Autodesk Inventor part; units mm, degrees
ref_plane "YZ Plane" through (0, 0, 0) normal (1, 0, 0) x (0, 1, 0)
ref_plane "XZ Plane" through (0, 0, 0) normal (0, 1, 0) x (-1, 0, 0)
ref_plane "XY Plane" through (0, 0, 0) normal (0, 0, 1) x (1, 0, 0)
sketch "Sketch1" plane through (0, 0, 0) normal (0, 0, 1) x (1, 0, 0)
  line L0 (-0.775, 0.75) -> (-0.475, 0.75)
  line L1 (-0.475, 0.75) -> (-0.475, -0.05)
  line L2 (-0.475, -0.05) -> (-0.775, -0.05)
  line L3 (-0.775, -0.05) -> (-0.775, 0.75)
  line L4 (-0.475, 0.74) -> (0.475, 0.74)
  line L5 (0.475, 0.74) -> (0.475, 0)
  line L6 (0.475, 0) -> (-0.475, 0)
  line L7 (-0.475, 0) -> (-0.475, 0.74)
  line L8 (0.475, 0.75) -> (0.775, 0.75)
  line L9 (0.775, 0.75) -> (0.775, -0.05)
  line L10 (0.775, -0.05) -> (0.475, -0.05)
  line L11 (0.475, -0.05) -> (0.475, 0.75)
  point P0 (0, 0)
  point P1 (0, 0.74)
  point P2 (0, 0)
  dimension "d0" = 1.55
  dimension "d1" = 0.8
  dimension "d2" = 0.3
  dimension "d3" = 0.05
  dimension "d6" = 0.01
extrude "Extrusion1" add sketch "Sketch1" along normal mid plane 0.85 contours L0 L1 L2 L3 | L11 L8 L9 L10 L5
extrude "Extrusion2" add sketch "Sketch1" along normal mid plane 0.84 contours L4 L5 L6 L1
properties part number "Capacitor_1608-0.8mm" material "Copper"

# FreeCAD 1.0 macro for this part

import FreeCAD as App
import Part
import Sketcher

V = App.Vector

doc = App.newDocument("Part")
body = doc.addObject("PartDesign::Body", "Body")
body.AllowCompound = True

sketch1 = body.newObject("Sketcher::SketchObject", "Sketch")
sketch1.AttachmentSupport = (doc.getObject("XY_Plane"), [""])
sketch1.MapMode = "FlatFace"
sketch1.addGeometry(Part.LineSegment(V(-0.47, 0.75, 0), V(-0.78, 0.75, 0)), False)
sketch1.addGeometry(Part.LineSegment(V(-0.78, 0.75, 0), V(-0.78, -0.05, 0)), False)
sketch1.addGeometry(Part.LineSegment(V(-0.78, -0.05, 0), V(-0.47, -0.05, 0)), False)
sketch1.addGeometry(Part.LineSegment(V(-0.47, -0.05, 0), V(-0.47, 0.75, 0)), False)
sketch1.addGeometry(Part.LineSegment(V(0.47, 0.75, 0), V(0.47, -0.05, 0)), False)
sketch1.addGeometry(Part.LineSegment(V(0.47, -0.05, 0), V(0.78, -0.05, 0)), False)
sketch1.addGeometry(Part.LineSegment(V(0.78, -0.05, 0), V(0.78, 0.75, 0)), False)
sketch1.addGeometry(Part.LineSegment(V(0.78, 0.75, 0), V(0.47, 0.75, 0)), False)
sketch1.addConstraint(Sketcher.Constraint("Coincident", 0, 2, 1, 1))
sketch1.addConstraint(Sketcher.Constraint("Coincident", 1, 2, 2, 1))
sketch1.addConstraint(Sketcher.Constraint("Coincident", 2, 2, 3, 1))
sketch1.addConstraint(Sketcher.Constraint("Coincident", 3, 2, 0, 1))
sketch1.addConstraint(Sketcher.Constraint("Coincident", 4, 2, 5, 1))
sketch1.addConstraint(Sketcher.Constraint("Coincident", 5, 2, 6, 1))
sketch1.addConstraint(Sketcher.Constraint("Coincident", 6, 2, 7, 1))
sketch1.addConstraint(Sketcher.Constraint("Coincident", 7, 2, 4, 1))
sketch1.addConstraint(Sketcher.Constraint("Horizontal", 0))
sketch1.addConstraint(Sketcher.Constraint("Vertical", 1))
sketch1.addConstraint(Sketcher.Constraint("Horizontal", 2))
sketch1.addConstraint(Sketcher.Constraint("Vertical", 3))
sketch1.addConstraint(Sketcher.Constraint("Vertical", 4))
sketch1.addConstraint(Sketcher.Constraint("Horizontal", 5))
sketch1.addConstraint(Sketcher.Constraint("Vertical", 6))
sketch1.addConstraint(Sketcher.Constraint("Horizontal", 7))
sketch1.addConstraint(Sketcher.Constraint("Symmetric", 2, 2, 4, 2, -2))
sketch1.addConstraint(Sketcher.Constraint("Symmetric", 0, 2, 6, 2, -2))
sketch1.addConstraint(Sketcher.Constraint("DistanceX", 0, 2, 0, 1, 0.3))
sketch1.addConstraint(Sketcher.Constraint("DistanceY", 1, 2, 1, 1, 0.8))
sketch1.addConstraint(Sketcher.Constraint("DistanceY", 1, 2, -1, 1, 0.05))
sketch1.addConstraint(Sketcher.Constraint("DistanceX", 1, 2, 5, 2, 1.55))
pad1 = body.newObject("PartDesign::Pad", "Pad")
pad1.Profile = sketch1
pad1.Length = 0.85
pad1.Midplane = True

sketch2 = body.newObject("Sketcher::SketchObject", "Sketch001")
sketch2.AttachmentSupport = (doc.getObject("XY_Plane"), [""])
sketch2.MapMode = "FlatFace"
sketch2.addGeometry(Part.LineSegment(V(0.5, 0.7, 0), V(-0.5, 0.7, 0)), False)
sketch2.addGeometry(Part.LineSegment(V(-0.5, 0.7, 0), V(-0.5, 0, 0)), False)
sketch2.addGeometry(Part.LineSegment(V(-0.5, 0, 0), V(0.5, 0, 0)), False)
sketch2.addGeometry(Part.LineSegment(V(0.5, 0, 0), V(0.5, 0.7, 0)), False)
sketch2.addConstraint(Sketcher.Constraint("Coincident", 0, 2, 1, 1))
sketch2.addConstraint(Sketcher.Constraint("Coincident", 1, 2, 2, 1))
sketch2.addConstraint(Sketcher.Constraint("Coincident", 2, 2, 3, 1))
sketch2.addConstraint(Sketcher.Constraint("Coincident", 3, 2, 0, 1))
sketch2.addConstraint(Sketcher.Constraint("Horizontal", 0))
sketch2.addConstraint(Sketcher.Constraint("Vertical", 1))
sketch2.addConstraint(Sketcher.Constraint("Horizontal", 2))
sketch2.addConstraint(Sketcher.Constraint("Vertical", 3))
sketch2.addConstraint(Sketcher.Constraint("Symmetric", 1, 2, 2, 2, -1, 1))
sketch2.addConstraint(Sketcher.Constraint("DistanceX", 0, 2, 0, 1, 0.95))
sketch2.addConstraint(Sketcher.Constraint("DistanceY", 1, 2, 1, 1, 0.74))
pad2 = body.newObject("PartDesign::Pad", "Pad001")
pad2.Profile = sketch2
pad2.Length = 0.84
pad2.Midplane = True

doc.recompute()
